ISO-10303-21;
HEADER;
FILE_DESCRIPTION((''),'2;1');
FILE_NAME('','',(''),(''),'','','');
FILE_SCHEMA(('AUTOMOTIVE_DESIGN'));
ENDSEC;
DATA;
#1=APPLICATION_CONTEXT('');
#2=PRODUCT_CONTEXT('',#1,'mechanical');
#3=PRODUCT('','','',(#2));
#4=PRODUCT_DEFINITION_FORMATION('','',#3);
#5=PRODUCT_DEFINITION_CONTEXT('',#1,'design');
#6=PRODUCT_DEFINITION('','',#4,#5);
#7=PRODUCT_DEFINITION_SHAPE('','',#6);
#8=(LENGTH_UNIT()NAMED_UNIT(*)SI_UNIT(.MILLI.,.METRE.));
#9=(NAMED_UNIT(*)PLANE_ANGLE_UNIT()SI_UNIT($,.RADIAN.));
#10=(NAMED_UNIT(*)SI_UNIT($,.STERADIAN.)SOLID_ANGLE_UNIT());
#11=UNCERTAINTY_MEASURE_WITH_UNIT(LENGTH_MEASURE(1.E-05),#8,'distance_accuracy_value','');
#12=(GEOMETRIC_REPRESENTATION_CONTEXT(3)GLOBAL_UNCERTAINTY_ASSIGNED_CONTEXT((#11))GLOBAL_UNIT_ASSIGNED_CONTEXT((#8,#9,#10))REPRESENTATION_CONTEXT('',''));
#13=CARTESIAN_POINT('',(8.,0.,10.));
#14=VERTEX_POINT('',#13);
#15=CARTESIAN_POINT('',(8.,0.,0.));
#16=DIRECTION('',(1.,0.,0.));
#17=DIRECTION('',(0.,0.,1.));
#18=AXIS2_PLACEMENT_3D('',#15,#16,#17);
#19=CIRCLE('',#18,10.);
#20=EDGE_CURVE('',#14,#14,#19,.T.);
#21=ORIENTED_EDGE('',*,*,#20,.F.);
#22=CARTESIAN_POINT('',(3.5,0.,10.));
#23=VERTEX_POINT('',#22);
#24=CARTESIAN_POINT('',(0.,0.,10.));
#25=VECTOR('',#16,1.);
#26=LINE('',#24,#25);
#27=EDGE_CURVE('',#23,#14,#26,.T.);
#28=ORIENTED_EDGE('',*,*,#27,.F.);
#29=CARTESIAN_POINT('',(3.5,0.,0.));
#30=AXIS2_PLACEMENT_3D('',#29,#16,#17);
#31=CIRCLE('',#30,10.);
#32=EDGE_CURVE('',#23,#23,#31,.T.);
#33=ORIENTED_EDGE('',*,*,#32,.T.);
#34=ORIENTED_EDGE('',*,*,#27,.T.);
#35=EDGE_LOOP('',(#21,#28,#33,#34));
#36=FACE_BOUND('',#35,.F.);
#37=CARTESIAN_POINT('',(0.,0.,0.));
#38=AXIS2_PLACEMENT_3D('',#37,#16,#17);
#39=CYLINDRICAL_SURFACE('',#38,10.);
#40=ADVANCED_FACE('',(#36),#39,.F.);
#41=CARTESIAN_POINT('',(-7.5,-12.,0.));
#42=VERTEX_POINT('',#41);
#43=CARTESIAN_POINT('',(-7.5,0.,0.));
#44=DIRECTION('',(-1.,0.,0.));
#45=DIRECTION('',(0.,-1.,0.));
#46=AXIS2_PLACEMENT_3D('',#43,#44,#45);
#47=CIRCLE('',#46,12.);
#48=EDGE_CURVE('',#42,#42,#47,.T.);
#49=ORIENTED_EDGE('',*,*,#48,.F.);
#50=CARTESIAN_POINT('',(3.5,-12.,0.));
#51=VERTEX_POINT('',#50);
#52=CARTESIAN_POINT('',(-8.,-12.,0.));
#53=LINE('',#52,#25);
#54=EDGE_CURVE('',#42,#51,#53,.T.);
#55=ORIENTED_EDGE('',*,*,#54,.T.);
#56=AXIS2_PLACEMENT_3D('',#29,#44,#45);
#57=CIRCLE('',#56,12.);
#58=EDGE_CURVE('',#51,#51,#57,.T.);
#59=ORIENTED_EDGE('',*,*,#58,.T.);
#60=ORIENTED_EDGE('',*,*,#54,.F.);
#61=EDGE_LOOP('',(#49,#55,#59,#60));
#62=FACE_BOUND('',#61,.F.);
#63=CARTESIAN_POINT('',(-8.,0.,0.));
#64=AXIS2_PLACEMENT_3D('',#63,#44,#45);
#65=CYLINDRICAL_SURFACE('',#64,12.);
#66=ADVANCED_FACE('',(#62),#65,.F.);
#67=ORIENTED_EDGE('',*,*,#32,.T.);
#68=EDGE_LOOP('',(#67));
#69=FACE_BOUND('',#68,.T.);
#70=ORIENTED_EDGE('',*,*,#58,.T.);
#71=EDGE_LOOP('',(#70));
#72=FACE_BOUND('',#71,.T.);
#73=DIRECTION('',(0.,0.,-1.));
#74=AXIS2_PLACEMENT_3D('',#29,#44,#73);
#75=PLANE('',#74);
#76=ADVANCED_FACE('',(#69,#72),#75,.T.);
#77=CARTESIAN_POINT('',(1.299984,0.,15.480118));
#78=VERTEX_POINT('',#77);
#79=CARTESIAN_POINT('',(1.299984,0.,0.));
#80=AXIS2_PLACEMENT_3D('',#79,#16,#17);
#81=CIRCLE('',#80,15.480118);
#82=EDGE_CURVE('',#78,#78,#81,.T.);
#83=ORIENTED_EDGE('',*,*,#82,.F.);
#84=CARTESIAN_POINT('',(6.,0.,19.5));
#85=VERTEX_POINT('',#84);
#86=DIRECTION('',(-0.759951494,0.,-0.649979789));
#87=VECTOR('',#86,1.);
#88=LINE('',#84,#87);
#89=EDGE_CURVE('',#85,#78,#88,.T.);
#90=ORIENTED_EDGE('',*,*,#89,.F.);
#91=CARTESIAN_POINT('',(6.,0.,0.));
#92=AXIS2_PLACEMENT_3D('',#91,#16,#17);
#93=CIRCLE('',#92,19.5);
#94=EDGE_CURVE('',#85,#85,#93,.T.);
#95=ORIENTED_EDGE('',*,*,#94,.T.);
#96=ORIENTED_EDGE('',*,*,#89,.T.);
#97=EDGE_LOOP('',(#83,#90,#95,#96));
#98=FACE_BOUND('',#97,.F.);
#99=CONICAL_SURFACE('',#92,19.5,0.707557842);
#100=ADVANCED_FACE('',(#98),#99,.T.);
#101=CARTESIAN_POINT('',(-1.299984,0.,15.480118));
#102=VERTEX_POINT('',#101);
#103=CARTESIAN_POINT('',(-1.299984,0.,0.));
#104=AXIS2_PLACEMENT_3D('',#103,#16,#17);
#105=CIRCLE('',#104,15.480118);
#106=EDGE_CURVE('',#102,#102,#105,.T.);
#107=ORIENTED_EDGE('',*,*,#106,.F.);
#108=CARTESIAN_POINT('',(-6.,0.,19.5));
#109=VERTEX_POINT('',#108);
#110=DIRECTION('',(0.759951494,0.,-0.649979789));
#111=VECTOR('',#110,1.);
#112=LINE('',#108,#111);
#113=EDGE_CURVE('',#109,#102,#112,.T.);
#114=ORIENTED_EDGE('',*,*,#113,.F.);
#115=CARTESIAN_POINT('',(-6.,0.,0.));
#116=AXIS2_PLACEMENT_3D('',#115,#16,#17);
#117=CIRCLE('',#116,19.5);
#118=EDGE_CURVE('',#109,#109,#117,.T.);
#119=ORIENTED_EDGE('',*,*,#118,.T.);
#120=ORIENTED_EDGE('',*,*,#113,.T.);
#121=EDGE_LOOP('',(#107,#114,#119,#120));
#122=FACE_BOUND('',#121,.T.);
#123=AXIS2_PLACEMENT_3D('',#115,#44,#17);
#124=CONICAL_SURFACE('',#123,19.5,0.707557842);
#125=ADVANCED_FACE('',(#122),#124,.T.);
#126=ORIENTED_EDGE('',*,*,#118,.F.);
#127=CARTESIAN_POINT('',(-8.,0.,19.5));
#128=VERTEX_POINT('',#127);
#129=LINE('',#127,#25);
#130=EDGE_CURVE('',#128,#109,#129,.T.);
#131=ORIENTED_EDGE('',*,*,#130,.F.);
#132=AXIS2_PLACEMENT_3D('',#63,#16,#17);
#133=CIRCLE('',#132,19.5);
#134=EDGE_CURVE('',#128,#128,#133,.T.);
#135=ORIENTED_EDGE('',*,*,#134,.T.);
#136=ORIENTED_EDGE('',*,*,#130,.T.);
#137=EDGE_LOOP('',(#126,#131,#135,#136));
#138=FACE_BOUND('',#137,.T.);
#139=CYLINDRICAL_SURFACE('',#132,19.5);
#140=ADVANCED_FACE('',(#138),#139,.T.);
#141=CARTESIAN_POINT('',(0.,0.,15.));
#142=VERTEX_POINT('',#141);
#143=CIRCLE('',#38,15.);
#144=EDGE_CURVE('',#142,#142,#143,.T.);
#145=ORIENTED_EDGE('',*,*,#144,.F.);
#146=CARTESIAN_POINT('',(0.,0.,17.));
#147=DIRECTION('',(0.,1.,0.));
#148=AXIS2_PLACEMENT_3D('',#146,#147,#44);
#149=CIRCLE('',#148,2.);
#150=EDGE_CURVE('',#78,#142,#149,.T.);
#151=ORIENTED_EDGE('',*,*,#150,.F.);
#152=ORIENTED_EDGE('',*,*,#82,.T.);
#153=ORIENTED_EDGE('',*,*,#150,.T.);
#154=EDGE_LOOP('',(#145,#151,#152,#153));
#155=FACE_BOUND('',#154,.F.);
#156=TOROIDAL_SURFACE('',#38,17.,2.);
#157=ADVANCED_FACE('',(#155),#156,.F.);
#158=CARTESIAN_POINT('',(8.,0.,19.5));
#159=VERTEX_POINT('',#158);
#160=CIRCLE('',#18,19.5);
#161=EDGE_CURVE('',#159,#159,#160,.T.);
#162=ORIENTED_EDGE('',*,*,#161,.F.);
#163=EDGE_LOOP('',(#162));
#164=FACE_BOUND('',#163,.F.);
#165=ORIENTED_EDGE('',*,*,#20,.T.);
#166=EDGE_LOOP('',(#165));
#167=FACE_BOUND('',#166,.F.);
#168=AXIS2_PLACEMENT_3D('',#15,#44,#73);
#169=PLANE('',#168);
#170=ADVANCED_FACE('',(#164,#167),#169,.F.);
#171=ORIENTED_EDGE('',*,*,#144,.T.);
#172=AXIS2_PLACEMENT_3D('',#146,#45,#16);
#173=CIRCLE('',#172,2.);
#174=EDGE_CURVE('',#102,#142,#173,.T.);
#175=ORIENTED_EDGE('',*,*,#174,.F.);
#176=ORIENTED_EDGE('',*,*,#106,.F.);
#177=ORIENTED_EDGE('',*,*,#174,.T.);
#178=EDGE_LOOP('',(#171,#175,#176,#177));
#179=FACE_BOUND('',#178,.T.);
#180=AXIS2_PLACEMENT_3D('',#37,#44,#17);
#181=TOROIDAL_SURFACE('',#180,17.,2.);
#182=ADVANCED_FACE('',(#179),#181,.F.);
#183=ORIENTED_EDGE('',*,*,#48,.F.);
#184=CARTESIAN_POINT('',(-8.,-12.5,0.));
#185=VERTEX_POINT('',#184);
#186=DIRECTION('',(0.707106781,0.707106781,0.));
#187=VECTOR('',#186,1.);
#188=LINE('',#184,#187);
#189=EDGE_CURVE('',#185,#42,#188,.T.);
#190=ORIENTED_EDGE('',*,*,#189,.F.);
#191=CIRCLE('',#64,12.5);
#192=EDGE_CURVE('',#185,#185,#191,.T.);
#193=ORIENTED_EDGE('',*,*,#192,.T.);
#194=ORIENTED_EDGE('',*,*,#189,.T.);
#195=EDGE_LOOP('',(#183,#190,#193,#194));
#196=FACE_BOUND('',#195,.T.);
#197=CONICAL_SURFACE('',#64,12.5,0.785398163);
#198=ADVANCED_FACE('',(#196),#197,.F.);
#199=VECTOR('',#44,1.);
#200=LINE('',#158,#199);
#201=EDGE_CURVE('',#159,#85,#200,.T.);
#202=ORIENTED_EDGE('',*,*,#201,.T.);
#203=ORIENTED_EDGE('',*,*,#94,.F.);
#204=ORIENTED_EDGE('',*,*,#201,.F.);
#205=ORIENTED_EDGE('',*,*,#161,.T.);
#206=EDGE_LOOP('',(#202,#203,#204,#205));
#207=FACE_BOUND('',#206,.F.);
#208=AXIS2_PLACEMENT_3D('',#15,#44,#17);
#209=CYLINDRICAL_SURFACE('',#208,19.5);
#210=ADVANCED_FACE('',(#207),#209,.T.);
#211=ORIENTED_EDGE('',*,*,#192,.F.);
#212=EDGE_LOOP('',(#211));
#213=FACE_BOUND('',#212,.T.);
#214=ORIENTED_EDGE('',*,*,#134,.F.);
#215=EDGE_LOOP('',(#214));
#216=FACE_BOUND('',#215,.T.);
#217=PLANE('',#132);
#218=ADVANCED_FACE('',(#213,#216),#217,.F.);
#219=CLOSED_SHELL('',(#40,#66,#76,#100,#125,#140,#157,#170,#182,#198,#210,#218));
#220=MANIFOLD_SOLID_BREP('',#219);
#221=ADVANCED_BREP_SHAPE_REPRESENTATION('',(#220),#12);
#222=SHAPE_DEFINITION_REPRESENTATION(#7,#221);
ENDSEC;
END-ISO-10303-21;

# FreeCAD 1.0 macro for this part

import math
import FreeCAD as App
import Part
import Sketcher


def edges_at(feature, points):
    """Names of the edges that pass closest to the given points."""
    edges = feature.Shape.Edges
    near = lambda p: min(range(len(edges)), key=lambda i: edges[i].distToShape(Part.Vertex(*p))[0])
    return sorted({f"Edge{near(p) + 1}" for p in points})

doc = App.newDocument("Part")
body = doc.addObject("PartDesign::Body", "Body")

# Sketch on XZ plane
sketch1 = doc.addObject("Sketcher::SketchObject", "Sketch")
body.addObject(sketch1)
sketch1.AttachmentSupport = (doc.XZ_Plane, [""])
sketch1.MapMode = "FlatFace"
sketch1.addGeometry([
    Part.LineSegment(App.Vector(-8, 19.5, 0), App.Vector(-8, 10, 0)),  # 0
    Part.LineSegment(App.Vector(-8, 10, 0), App.Vector(0, 10, 0)),  # 1
    Part.LineSegment(App.Vector(0, 10, 0), App.Vector(0, 15, 0)),  # 2
    Part.ArcOfCircle(Part.Circle(App.Vector(0, 17, 0), App.Vector(0, 0, 1), 2), math.radians(-131), math.radians(-90)),  # 3
    Part.LineSegment(App.Vector(-1.3, 15.5, 0), App.Vector(-6, 19.5, 0)),  # 4
    Part.LineSegment(App.Vector(-6, 19.5, 0), App.Vector(-8, 19.5, 0)),  # 5
], False)
sketch1.addConstraint([
    Sketcher.Constraint("Coincident", 0, 2, 1, 1),
    Sketcher.Constraint("Coincident", 1, 2, 2, 1),
    Sketcher.Constraint("Coincident", 2, 2, 3, 2),
    Sketcher.Constraint("Tangent", 3, 1, 4, 1),
    Sketcher.Constraint("Coincident", 4, 2, 5, 1),
    Sketcher.Constraint("Coincident", 5, 2, 0, 1),
    Sketcher.Constraint("Vertical", 0),
    Sketcher.Constraint("Horizontal", 1),
    Sketcher.Constraint("Vertical", 2),
    Sketcher.Constraint("Horizontal", 5),
    Sketcher.Constraint("PointOnObject", 3, 3, -2),
    Sketcher.Constraint("PointOnObject", 1, 2, -2),
    Sketcher.Constraint("Radius", 3, 2.0),
    Sketcher.Constraint("DistanceX", 1, 1, 1, 2, 8.0),
    Sketcher.Constraint("DistanceX", 5, 2, 5, 1, 2.0),
    Sketcher.Constraint("DistanceY", 2, 1, 2, 2, 5.0),
    Sketcher.Constraint("DistanceY", 0, 2, 0, 1, 9.5),
    Sketcher.Constraint("DistanceY", -1, 1, 3, 3, 17.0),
])
revolution = doc.addObject("PartDesign::Revolution", "Revolution")
body.addObject(revolution)
revolution.Profile = sketch1
revolution.ReferenceAxis = (sketch1, ["H_Axis"])
revolution.Angle = 360
doc.recompute()

mirrored = doc.addObject("PartDesign::Mirrored", "Mirrored")
body.addObject(mirrored)
mirrored.Originals = [revolution]
mirrored.MirrorPlane = (doc.YZ_Plane, [""])
body.Tip = mirrored

# Sketch on YZ plane
sketch2 = doc.addObject("Sketcher::SketchObject", "Sketch001")
body.addObject(sketch2)
sketch2.AttachmentSupport = (doc.YZ_Plane, [""])
sketch2.MapMode = "FlatFace"
sketch2.AttachmentOffset = App.Placement(App.Vector(0, 0, -8), App.Rotation())
sketch2.addGeometry(Part.Circle(App.Vector(0, 0, 0), App.Vector(0, 0, 1), 12), False)
sketch2.addConstraint([
    Sketcher.Constraint("Coincident", 0, 3, -1, 1),
    Sketcher.Constraint("Diameter", 0, 24.0),
])
pocket1 = doc.addObject("PartDesign::Pocket", "Pocket")
body.addObject(pocket1)
pocket1.Profile = sketch2
pocket1.Length = 11.5
pocket1.Reversed = True
doc.recompute()

chamfer = doc.addObject("PartDesign::Chamfer", "Chamfer")
body.addObject(chamfer)
chamfer.Base = (pocket1, edges_at(pocket1, [(-8, 12, 0)]))
chamfer.Size = 0.5

doc.recompute()
